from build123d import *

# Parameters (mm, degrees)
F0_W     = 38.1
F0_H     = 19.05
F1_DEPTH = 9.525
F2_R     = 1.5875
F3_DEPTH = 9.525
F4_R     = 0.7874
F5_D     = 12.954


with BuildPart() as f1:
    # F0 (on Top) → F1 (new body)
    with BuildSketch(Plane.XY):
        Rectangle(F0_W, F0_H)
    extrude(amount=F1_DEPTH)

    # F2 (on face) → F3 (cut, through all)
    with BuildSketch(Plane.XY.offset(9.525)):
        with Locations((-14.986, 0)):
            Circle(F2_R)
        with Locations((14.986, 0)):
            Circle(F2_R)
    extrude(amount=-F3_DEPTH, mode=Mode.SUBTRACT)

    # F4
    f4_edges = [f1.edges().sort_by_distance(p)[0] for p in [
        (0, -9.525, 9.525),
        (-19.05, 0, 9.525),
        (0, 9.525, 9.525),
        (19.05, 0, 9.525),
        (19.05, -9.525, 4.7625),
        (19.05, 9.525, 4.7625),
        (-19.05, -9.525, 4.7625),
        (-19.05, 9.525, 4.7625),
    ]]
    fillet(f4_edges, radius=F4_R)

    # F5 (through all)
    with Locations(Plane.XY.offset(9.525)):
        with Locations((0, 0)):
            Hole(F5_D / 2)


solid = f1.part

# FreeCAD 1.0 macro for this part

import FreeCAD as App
import Part
import Sketcher
from FreeCAD import Vector
Q = App.Units.Quantity


def edges_at(feature, points):
    """Names of the edges that pass closest to the given points."""
    edges = feature.Shape.Edges
    near = lambda p: min(range(len(edges)), key=lambda i: edges[i].distToShape(Part.Vertex(*p))[0])
    return sorted({f"Edge{near(p) + 1}" for p in points})

doc = App.newDocument("Part")
body = doc.addObject("PartDesign::Body", "Body")

sketch1 = body.newObject("Sketcher::SketchObject", "Sketch")
sketch1.AttachmentSupport = (doc.getObject("XY_Plane"), [""])
sketch1.MapMode = "FlatFace"
sketch1.addGeometry([
    Part.LineSegment(Vector(-19, 10, 0), Vector(-19, -10, 0)),
    Part.LineSegment(Vector(-19, -10, 0), Vector(19, -10, 0)),
    Part.LineSegment(Vector(19, -10, 0), Vector(19, 10, 0)),
    Part.LineSegment(Vector(19, 10, 0), Vector(-19, 10, 0)),
], False)
sketch1.addConstraint([
    Sketcher.Constraint("Coincident", 0, 2, 1, 1),
    Sketcher.Constraint("Coincident", 1, 2, 2, 1),
    Sketcher.Constraint("Coincident", 2, 2, 3, 1),
    Sketcher.Constraint("Coincident", 3, 2, 0, 1),
    Sketcher.Constraint("Vertical", 0),
    Sketcher.Constraint("Horizontal", 1),
    Sketcher.Constraint("Vertical", 2),
    Sketcher.Constraint("Horizontal", 3),
    Sketcher.Constraint("Symmetric", 0, 2, 2, 2, -1, 1),
    Sketcher.Constraint("DistanceX", 1, 1, 1, 2, Q("1.5 in")),
    Sketcher.Constraint("DistanceY", 0, 2, 0, 1, Q("0.75 in")),
])
pad1 = body.newObject("PartDesign::Pad", "Pad")
pad1.Profile = sketch1
pad1.Length = Q("0.375 in")

sketch2 = body.newObject("Sketcher::SketchObject", "Sketch001")
sketch2.AttachmentSupport = (doc.getObject("XY_Plane"), [""])
sketch2.MapMode = "FlatFace"
sketch2.AttachmentOffset = App.Placement(Vector(0, 0, 0.375 * 25.4), App.Rotation())
sketch2.addGeometry([
    Part.Circle(Vector(-15, 0, 0), Vector(0, 0, 1), 1.6),
    Part.Circle(Vector(15, 0, 0), Vector(0, 0, 1), 1.6),
], False)
sketch2.addConstraint([
    Sketcher.Constraint("Equal", 0, 1),
    Sketcher.Constraint("Symmetric", 0, 3, 1, 3, -1, 1),
    Sketcher.Constraint("PointOnObject", 0, 3, -1),
    Sketcher.Constraint("Diameter", 0, Q("0.125 in")),
    Sketcher.Constraint("DistanceX", 0, 3, -1, 1, Q("0.59 in")),
])
pocket1 = body.newObject("PartDesign::Pocket", "Pocket")
pocket1.Profile = sketch2
pocket1.Type = "ThroughAll"
doc.recompute()

fillet = body.newObject("PartDesign::Fillet", "Fillet")
fillet.Base = (pocket1, edges_at(pocket1, [
    (0, -9.525, 9.525),
    (-19.05, 0, 9.525),
    (0, 9.525, 9.525),
    (19.05, 0, 9.525),
    (19.05, -9.525, 4.763),
    (19.05, 9.525, 4.763),
    (-19.05, -9.525, 4.763),
    (-19.05, 9.525, 4.763),
]))
fillet.Radius = Q("0.031 in")

sketch3 = body.newObject("Sketcher::SketchObject", "Sketch002")
sketch3.AttachmentSupport = (doc.getObject("XY_Plane"), [""])
sketch3.MapMode = "FlatFace"
sketch3.AttachmentOffset = App.Placement(Vector(0, 0, 0.375 * 25.4), App.Rotation())
sketch3.addGeometry(Part.Circle(Vector(0, 0, 0), Vector(0, 0, 1), 6), False)
sketch3.addConstraint([
    Sketcher.Constraint("Coincident", 0, 3, -1, 1),
    Sketcher.Constraint("Diameter", 0, Q("0.51 in")),
])
doc.recompute()
hole = body.newObject("PartDesign::Hole", "Hole")
hole.Profile = sketch3
hole.ThreadType = "None"
hole.Diameter = Q("0.51 in")
hole.DepthType = "ThroughAll"

doc.recompute()
